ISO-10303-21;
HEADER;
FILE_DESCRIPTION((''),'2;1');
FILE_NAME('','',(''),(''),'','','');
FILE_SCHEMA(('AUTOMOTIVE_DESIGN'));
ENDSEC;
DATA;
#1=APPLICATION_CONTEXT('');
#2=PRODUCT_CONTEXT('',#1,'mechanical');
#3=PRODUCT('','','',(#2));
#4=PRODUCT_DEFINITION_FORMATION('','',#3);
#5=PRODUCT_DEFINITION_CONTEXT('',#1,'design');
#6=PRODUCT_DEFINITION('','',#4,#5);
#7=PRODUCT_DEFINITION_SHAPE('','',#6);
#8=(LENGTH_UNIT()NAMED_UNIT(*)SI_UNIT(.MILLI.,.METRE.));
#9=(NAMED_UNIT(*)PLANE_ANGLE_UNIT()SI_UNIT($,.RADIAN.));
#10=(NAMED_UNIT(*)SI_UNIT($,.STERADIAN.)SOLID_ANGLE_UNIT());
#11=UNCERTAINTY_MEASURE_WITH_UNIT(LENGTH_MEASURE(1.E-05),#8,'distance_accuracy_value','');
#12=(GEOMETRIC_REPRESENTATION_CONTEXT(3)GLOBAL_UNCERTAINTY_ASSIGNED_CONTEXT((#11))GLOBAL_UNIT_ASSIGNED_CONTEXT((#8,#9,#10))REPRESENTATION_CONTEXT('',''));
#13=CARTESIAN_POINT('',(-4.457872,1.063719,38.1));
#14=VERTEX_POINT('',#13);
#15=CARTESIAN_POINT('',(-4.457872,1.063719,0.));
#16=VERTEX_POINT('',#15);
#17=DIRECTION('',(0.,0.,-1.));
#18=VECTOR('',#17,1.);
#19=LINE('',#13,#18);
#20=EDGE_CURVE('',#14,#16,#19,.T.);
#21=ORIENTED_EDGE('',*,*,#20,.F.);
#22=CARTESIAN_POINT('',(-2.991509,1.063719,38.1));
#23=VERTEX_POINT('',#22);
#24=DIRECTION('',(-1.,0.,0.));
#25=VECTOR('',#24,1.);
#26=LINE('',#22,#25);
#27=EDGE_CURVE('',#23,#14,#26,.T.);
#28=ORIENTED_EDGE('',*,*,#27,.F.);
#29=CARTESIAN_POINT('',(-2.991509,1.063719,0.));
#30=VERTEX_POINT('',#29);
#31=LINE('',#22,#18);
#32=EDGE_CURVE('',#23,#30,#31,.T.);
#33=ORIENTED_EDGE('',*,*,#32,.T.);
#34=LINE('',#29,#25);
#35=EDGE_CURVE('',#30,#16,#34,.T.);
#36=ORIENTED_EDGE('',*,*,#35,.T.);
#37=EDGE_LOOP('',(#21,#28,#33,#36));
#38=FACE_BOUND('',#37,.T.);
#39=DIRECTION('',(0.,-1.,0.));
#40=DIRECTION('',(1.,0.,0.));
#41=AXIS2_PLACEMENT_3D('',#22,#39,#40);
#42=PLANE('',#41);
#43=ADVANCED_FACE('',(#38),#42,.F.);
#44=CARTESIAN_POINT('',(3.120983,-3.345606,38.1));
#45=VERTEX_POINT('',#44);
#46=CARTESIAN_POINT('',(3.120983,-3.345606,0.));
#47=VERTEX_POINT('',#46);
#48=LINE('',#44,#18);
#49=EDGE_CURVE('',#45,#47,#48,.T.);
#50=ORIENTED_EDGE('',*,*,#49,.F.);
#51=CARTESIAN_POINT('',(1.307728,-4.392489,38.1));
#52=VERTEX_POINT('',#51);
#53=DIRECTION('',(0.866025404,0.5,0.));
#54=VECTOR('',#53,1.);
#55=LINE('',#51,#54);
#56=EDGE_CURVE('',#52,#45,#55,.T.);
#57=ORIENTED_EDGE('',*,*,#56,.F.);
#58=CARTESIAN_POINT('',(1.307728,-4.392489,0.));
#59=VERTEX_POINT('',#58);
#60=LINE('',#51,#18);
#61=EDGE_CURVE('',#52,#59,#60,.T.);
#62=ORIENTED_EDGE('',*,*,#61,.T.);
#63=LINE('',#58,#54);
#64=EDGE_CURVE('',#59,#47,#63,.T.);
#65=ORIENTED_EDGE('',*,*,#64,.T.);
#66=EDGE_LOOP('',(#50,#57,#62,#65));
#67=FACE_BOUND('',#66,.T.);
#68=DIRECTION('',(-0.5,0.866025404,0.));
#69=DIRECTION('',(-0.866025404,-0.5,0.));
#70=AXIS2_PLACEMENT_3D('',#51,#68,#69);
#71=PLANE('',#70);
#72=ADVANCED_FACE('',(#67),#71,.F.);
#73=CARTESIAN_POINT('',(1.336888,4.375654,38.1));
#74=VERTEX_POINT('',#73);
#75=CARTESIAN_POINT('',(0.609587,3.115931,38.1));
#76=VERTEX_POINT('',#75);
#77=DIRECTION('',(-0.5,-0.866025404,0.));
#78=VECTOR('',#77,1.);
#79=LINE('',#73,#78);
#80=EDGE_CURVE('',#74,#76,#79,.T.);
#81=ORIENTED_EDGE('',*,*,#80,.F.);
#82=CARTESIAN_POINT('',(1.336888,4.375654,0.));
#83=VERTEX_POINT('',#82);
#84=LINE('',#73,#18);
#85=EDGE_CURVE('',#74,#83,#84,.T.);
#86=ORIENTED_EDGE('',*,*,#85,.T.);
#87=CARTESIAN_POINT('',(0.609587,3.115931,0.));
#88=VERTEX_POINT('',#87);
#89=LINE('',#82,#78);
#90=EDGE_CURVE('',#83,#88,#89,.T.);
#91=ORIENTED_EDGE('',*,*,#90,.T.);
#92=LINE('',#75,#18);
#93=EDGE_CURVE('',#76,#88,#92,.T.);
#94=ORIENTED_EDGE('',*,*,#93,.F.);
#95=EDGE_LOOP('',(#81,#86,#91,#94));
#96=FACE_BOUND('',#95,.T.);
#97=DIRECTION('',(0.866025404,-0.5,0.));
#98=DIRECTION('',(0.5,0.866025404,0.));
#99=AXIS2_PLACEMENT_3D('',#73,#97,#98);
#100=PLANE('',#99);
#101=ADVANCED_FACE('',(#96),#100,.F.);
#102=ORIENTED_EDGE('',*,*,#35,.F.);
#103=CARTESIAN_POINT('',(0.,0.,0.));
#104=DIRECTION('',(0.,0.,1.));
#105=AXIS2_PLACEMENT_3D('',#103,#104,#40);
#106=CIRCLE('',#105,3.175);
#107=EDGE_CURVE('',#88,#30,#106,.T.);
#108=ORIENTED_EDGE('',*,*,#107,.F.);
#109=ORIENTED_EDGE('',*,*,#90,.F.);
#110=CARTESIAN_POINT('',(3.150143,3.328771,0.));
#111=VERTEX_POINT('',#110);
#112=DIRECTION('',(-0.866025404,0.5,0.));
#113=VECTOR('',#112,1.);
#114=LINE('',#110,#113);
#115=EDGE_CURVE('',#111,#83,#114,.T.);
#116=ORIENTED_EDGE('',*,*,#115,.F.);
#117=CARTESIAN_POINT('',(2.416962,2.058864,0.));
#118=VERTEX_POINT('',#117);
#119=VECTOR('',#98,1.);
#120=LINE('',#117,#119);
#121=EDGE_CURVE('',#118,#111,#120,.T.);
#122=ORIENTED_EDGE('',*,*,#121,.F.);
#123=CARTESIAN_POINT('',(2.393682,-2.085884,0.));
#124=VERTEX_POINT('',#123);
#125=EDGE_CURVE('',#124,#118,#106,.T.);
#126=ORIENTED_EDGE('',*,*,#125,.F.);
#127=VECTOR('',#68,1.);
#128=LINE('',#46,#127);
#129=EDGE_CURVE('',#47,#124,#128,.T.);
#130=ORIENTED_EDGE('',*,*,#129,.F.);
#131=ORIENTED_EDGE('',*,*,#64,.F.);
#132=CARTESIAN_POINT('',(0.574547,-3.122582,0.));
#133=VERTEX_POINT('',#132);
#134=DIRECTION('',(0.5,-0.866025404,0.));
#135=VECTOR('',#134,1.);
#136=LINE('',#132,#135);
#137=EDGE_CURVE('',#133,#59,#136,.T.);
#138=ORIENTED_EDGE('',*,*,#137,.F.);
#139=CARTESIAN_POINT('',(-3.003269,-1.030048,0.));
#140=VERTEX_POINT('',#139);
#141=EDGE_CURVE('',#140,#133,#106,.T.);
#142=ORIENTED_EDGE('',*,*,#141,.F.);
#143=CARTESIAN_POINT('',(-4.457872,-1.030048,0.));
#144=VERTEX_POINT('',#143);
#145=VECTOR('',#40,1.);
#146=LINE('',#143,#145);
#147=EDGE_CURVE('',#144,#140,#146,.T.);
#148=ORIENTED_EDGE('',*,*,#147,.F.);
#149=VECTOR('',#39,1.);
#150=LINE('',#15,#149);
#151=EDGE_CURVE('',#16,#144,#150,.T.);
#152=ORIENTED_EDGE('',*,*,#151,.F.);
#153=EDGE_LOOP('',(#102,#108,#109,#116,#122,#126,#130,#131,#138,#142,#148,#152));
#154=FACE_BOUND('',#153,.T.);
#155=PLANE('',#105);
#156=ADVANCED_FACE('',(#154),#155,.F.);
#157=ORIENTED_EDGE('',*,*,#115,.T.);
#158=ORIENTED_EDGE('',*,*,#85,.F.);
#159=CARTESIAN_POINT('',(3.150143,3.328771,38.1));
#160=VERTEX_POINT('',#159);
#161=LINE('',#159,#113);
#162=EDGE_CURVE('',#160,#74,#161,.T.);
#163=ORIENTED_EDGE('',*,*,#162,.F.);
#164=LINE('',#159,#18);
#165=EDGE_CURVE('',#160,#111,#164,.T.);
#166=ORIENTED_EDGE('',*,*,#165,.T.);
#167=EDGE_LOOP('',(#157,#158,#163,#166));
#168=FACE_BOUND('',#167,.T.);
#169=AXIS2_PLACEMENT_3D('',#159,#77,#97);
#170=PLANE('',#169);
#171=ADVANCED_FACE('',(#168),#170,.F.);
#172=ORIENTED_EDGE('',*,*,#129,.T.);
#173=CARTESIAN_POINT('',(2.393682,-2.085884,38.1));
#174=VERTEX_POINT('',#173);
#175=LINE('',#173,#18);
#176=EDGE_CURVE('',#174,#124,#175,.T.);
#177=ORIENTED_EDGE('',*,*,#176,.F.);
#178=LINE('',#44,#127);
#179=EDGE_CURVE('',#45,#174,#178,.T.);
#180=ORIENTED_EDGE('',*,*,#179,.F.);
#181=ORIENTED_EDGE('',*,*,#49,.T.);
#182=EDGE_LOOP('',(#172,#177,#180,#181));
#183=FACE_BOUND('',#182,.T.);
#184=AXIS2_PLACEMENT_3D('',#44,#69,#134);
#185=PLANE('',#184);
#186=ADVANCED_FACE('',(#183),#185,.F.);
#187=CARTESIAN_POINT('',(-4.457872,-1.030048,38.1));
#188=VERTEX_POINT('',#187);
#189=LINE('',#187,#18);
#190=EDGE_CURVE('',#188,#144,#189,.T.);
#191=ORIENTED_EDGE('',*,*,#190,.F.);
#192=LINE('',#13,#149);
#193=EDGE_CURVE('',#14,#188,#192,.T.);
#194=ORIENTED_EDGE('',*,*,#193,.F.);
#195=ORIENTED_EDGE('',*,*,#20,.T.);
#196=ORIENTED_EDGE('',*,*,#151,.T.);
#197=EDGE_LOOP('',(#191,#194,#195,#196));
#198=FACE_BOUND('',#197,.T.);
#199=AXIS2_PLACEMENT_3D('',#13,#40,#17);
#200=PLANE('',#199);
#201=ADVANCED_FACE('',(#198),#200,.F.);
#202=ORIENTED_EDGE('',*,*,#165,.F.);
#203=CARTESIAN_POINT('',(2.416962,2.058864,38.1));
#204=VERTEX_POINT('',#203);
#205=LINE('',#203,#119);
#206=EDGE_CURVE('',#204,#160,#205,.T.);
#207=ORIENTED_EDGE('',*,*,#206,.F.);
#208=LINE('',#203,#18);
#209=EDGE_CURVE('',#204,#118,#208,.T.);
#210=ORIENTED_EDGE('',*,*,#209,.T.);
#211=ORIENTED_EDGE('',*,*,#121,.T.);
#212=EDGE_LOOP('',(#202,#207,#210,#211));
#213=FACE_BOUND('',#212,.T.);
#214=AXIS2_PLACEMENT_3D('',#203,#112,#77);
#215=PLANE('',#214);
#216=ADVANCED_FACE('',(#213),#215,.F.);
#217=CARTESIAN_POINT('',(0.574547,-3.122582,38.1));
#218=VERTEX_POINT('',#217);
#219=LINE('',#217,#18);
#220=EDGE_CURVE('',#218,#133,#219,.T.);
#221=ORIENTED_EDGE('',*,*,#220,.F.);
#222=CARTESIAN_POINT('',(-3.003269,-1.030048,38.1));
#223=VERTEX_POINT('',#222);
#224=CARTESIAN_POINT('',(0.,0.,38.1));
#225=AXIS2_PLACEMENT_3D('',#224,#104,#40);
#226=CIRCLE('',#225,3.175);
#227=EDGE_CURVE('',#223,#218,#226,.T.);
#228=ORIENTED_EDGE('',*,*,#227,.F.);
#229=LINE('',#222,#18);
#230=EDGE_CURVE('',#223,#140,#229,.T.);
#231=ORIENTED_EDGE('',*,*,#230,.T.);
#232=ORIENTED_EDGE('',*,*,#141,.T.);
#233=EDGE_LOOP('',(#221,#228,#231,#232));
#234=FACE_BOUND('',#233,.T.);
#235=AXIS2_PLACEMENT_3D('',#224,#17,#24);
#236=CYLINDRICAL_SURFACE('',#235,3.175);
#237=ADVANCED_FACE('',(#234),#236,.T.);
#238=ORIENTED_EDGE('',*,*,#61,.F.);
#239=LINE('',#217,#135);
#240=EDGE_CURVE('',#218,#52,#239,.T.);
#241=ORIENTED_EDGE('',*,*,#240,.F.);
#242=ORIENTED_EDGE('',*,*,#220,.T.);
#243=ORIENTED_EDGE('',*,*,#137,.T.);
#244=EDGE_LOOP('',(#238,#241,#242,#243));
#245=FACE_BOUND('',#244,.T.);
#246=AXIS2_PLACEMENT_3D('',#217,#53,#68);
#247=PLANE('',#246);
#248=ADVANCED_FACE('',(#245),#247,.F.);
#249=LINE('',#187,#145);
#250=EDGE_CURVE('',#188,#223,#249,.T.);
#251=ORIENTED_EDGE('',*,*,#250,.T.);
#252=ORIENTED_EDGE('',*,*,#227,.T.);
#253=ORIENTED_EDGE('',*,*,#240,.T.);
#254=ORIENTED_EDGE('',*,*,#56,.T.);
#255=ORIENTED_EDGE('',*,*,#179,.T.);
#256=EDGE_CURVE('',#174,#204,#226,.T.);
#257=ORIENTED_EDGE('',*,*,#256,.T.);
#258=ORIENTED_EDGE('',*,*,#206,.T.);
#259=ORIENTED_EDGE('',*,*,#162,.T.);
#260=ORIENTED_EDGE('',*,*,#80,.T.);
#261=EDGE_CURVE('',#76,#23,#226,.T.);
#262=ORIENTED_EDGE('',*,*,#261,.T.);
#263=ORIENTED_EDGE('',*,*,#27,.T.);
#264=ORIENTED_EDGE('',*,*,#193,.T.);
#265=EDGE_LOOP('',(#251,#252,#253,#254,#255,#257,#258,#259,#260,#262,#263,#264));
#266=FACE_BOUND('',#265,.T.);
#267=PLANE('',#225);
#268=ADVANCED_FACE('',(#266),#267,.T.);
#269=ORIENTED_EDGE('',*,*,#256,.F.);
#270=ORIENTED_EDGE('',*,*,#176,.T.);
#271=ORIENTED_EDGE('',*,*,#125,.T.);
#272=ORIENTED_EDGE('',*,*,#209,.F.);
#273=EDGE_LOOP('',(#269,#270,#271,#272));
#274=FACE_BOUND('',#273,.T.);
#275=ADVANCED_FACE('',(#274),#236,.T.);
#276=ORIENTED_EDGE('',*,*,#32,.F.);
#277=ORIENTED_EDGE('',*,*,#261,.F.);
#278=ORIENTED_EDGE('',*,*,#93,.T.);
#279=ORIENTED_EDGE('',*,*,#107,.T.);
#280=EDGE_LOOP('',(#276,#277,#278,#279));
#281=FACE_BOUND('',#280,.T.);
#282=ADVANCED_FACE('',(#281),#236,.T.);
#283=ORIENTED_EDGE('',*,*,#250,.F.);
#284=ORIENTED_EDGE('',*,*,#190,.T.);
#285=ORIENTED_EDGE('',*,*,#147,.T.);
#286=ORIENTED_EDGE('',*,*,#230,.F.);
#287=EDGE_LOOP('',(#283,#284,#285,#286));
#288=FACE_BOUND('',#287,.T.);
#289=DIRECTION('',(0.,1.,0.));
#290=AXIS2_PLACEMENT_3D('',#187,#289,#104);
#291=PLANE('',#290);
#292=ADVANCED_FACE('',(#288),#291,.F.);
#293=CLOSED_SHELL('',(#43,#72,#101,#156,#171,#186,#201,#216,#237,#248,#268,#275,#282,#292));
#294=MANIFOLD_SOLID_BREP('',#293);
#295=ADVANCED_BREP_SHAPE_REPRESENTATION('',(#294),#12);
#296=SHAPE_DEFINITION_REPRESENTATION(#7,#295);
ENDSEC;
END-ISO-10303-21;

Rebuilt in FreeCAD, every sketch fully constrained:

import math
import FreeCAD as App
import Part
import Sketcher

V = App.Vector
Q = App.Units.Quantity

doc = App.newDocument("Part")
body = doc.addObject("PartDesign::Body", "Body")

sketch1 = body.newObject("Sketcher::SketchObject", "Sketch")
sketch1.AttachmentSupport = (doc.getObject("XY_Plane"), [""])
sketch1.MapMode = "FlatFace"
sketch1.addGeometry(Part.LineSegment(V(2.4, 2.1, 0), V(3.2, 3.3, 0)), False)
sketch1.addGeometry(Part.LineSegment(V(3.2, 3.3, 0), V(1.3, 4.4, 0)), False)
sketch1.addGeometry(Part.LineSegment(V(1.3, 4.4, 0), V(0.6, 3.1, 0)), False)
sketch1.addGeometry(Part.ArcOfCircle(Part.Circle(V(0, 0, 0), V(0, 0, 1), 3.2), math.radians(79), math.radians(160)), False)
sketch1.addGeometry(Part.LineSegment(V(-3, 1.1, 0), V(-4.5, 1.1, 0)), False)
sketch1.addGeometry(Part.LineSegment(V(-4.5, 1.1, 0), V(-4.5, -1, 0)), False)
sketch1.addGeometry(Part.LineSegment(V(-4.5, -1, 0), V(-3, -1, 0)), False)
sketch1.addGeometry(Part.ArcOfCircle(Part.Circle(V(0, 0, 0), V(0, 0, 1), 3.2), math.radians(-161), math.radians(-80)), False)
sketch1.addGeometry(Part.LineSegment(V(0.6, -3.1, 0), V(1.3, -4.4, 0)), False)
sketch1.addGeometry(Part.LineSegment(V(1.3, -4.4, 0), V(3.1, -3.3, 0)), False)
sketch1.addGeometry(Part.LineSegment(V(3.1, -3.3, 0), V(2.4, -2.1, 0)), False)
sketch1.addGeometry(Part.ArcOfCircle(Part.Circle(V(0, 0, 0), V(0, 0, 1), 3.2), math.radians(-41), math.radians(40)), False)
sketch1.addConstraint(Sketcher.Constraint("Coincident", 0, 2, 1, 1))
sketch1.addConstraint(Sketcher.Constraint("Coincident", 1, 2, 2, 1))
sketch1.addConstraint(Sketcher.Constraint("Coincident", 2, 2, 3, 1))
sketch1.addConstraint(Sketcher.Constraint("Coincident", 3, 2, 4, 1))
sketch1.addConstraint(Sketcher.Constraint("Coincident", 4, 2, 5, 1))
sketch1.addConstraint(Sketcher.Constraint("Coincident", 5, 2, 6, 1))
sketch1.addConstraint(Sketcher.Constraint("Coincident", 6, 2, 7, 1))
sketch1.addConstraint(Sketcher.Constraint("Coincident", 7, 2, 8, 1))
sketch1.addConstraint(Sketcher.Constraint("Coincident", 8, 2, 9, 1))
sketch1.addConstraint(Sketcher.Constraint("Coincident", 9, 2, 10, 1))
sketch1.addConstraint(Sketcher.Constraint("Coincident", 10, 2, 11, 1))
sketch1.addConstraint(Sketcher.Constraint("Coincident", 11, 2, 0, 1))
sketch1.addConstraint(Sketcher.Constraint("Horizontal", 4))
sketch1.addConstraint(Sketcher.Constraint("Vertical", 5))
sketch1.addConstraint(Sketcher.Constraint("Horizontal", 6))
sketch1.addConstraint(Sketcher.Constraint("Coincident", 3, 3, -1, 1))
sketch1.addConstraint(Sketcher.Constraint("Coincident", 7, 3, -1, 1))
sketch1.addConstraint(Sketcher.Constraint("Coincident", 11, 3, -1, 1))
sketch1.addConstraint(Sketcher.Constraint("Equal", 3, 7))
sketch1.addConstraint(Sketcher.Constraint("Equal", 7, 11))
sketch1.addConstraint(Sketcher.Constraint("Perpendicular", 0, 1))
sketch1.addConstraint(Sketcher.Constraint("Perpendicular", 1, 2))
sketch1.addConstraint(Sketcher.Constraint("Perpendicular", 8, 9))
sketch1.addConstraint(Sketcher.Constraint("Perpendicular", 9, 10))
sketch1.addConstraint(Sketcher.Constraint("Equal", 0, 8))
sketch1.addConstraint(Sketcher.Constraint("Equal", 1, 9))
sketch1.addConstraint(Sketcher.Constraint("Equal", 2, 10))
sketch1.addConstraint(Sketcher.Constraint("Angle", 0, Q("60 deg")))
sketch1.addConstraint(Sketcher.Constraint("Angle", 8, Q("-60 deg")))
sketch1.addConstraint(Sketcher.Constraint("Radius", 3, Q("0.125 in")))
sketch1.addConstraint(Sketcher.Constraint("DistanceX", 2, 2, 1, 2, 0.727301))
sketch1.addConstraint(Sketcher.Constraint("DistanceY", 7, 2, 10, 2, 1.036699))
sketch1.addConstraint(Sketcher.Constraint("DistanceX", 4, 2, 4, 1, 1.466362))
sketch1.addConstraint(Sketcher.Constraint("DistanceX", 6, 1, 6, 2, 1.454602))
sketch1.addConstraint(Sketcher.Constraint("DistanceY", 5, 2, 5, 1, 2.093767))
sketch1.addConstraint(Sketcher.Constraint("DistanceY", -1, 1, 0, 2, 3.328771))
pad1 = body.newObject("PartDesign::Pad", "Pad")
pad1.Profile = sketch1
pad1.Length = Q("1.5 in")

doc.recompute()
